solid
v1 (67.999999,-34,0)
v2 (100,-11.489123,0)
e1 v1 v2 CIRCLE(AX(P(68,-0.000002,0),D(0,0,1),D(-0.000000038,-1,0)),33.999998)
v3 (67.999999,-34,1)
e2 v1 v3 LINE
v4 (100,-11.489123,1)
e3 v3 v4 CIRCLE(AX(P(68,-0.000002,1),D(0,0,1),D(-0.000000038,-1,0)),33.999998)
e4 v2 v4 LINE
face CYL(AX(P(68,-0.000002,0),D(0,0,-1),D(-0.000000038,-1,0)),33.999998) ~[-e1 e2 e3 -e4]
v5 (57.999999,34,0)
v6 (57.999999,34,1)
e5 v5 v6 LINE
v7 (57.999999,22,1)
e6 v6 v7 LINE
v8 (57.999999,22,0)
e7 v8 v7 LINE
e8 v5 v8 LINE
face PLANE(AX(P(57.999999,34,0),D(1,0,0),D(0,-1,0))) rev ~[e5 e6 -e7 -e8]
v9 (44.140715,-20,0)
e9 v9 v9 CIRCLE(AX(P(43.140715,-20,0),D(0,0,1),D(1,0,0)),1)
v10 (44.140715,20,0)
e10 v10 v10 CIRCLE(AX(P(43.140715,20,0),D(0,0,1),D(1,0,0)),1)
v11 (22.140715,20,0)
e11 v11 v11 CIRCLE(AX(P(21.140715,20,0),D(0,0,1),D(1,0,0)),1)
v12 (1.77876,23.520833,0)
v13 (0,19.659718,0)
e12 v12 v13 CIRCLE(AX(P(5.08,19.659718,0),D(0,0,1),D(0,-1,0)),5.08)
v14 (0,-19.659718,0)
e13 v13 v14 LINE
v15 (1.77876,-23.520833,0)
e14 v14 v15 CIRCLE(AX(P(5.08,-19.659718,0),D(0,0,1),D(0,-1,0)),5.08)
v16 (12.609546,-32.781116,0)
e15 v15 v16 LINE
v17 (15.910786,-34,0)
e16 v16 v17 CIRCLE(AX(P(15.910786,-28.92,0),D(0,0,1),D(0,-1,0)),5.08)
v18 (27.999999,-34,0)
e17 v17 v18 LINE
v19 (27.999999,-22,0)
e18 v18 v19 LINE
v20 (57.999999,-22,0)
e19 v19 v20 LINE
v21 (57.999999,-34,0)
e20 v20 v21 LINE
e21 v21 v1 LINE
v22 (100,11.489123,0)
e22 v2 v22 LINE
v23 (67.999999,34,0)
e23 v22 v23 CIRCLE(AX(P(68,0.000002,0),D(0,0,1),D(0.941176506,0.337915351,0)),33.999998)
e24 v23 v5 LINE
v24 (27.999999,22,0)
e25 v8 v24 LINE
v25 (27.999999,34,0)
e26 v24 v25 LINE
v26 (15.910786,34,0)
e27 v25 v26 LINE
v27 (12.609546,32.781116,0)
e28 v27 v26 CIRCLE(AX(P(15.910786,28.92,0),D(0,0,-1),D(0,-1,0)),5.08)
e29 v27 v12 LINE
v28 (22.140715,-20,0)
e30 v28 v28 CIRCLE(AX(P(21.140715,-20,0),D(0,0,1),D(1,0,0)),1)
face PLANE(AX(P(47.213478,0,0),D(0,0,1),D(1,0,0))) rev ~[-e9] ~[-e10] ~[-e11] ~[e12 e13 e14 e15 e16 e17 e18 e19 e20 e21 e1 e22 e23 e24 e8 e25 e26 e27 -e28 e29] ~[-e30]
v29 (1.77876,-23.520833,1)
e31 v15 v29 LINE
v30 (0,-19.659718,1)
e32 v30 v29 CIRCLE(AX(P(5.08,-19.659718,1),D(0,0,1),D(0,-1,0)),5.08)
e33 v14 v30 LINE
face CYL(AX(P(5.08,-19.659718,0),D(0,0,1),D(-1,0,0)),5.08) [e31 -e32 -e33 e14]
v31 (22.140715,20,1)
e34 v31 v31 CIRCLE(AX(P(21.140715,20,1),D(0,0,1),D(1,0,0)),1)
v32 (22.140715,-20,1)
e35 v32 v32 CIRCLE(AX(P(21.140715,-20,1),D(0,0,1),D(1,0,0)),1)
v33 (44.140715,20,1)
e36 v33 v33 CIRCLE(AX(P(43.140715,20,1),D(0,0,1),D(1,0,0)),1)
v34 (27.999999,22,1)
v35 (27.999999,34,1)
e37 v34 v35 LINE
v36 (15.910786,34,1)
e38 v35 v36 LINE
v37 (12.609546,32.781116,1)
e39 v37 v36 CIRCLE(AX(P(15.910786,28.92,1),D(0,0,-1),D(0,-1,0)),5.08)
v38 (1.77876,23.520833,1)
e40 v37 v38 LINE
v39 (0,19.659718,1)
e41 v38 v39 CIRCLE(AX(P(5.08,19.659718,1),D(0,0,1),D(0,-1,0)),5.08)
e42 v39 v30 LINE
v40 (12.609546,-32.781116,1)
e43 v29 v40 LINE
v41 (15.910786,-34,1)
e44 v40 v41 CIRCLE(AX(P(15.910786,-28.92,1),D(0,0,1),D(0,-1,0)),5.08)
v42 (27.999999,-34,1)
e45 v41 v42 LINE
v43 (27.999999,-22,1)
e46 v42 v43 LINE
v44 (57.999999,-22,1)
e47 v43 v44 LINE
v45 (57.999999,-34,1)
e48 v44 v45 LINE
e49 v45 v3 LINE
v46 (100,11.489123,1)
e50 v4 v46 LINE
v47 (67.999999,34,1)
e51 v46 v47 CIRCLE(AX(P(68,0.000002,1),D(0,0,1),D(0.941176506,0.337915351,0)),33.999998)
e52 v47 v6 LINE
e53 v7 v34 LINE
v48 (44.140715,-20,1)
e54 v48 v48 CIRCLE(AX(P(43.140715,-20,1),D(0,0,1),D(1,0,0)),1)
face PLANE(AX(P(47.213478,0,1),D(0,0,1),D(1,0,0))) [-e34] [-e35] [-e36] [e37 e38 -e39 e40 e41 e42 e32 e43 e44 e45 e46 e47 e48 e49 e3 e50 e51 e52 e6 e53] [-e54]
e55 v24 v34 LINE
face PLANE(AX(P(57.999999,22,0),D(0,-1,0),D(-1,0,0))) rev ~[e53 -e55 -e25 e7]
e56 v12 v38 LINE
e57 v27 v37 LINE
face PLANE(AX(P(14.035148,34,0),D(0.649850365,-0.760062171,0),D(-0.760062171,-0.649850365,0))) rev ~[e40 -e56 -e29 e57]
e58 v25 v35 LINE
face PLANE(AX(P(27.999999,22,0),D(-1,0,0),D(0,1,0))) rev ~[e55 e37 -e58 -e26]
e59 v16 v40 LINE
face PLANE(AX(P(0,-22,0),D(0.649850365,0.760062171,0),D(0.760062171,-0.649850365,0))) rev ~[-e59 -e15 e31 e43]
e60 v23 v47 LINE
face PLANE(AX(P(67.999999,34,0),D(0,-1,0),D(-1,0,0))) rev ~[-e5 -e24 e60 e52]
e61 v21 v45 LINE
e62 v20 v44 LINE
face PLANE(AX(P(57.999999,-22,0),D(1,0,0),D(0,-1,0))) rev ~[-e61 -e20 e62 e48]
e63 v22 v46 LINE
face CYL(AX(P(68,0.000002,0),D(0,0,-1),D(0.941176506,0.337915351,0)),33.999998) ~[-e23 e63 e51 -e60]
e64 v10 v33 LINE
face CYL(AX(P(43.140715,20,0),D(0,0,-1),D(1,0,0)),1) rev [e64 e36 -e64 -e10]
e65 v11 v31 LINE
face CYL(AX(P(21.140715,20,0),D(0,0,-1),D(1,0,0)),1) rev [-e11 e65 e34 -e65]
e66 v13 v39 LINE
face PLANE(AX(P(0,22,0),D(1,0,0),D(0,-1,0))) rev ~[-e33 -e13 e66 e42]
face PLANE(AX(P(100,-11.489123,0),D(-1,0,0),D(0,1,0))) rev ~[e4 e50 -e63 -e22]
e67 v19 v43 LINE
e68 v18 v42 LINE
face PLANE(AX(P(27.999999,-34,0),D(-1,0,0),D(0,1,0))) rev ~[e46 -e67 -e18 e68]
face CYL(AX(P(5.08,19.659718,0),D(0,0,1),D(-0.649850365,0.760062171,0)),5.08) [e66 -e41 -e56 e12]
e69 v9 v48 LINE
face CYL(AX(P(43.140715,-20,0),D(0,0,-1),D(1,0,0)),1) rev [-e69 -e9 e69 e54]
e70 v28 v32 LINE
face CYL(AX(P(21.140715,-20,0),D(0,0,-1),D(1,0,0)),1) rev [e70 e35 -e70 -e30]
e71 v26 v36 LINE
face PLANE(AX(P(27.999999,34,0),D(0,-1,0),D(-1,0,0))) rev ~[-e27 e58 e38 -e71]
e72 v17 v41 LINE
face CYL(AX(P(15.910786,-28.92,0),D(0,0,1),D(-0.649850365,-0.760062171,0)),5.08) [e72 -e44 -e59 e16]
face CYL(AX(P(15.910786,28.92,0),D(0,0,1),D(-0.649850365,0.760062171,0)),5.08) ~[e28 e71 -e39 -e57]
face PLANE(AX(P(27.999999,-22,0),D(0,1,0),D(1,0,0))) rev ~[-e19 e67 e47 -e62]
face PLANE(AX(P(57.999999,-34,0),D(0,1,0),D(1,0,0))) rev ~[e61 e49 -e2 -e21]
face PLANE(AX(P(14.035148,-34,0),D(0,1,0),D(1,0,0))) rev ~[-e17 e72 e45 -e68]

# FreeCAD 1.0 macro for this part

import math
import FreeCAD as App
import Part
import Sketcher
from FreeCAD import Vector
Q = App.Units.Quantity


def edges_at(feature, points):
    """Names of the edges that pass closest to the given points."""
    edges = feature.Shape.Edges
    near = lambda p: min(range(len(edges)), key=lambda i: edges[i].distToShape(Part.Vertex(*p))[0])
    return sorted({f"Edge{near(p) + 1}" for p in points})

doc = App.newDocument("Part")
body = doc.addObject("PartDesign::Body", "Body")

sketch1 = doc.addObject("Sketcher::SketchObject", "Sketch")
body.addObject(sketch1)
sketch1.AttachmentSupport = (doc.XY_Plane, [""])
sketch1.MapMode = "FlatFace"
sketch1.addGeometry([
    Part.LineSegment(Vector(0, 22, 0), Vector(0, -22, 0)),
    Part.LineSegment(Vector(0, -22, 0), Vector(14, -34, 0)),
    Part.LineSegment(Vector(14, -34, 0), Vector(28, -34, 0)),
    Part.LineSegment(Vector(28, -34, 0), Vector(28, -22, 0)),
    Part.LineSegment(Vector(28, -22, 0), Vector(58, -22, 0)),
    Part.LineSegment(Vector(58, -22, 0), Vector(58, -34, 0)),
    Part.LineSegment(Vector(58, -34, 0), Vector(68, -34, 0)),
    Part.ArcOfCircle(Part.Circle(Vector(68, 0, 0), Vector(0, 0, 1), 34), math.radians(-90), math.radians(-20)),
    Part.LineSegment(Vector(100, -11.5, 0), Vector(100, 11.5, 0)),
    Part.ArcOfCircle(Part.Circle(Vector(68, 0, 0), Vector(0, 0, 1), 34), math.radians(20), math.radians(90)),
    Part.LineSegment(Vector(68, 34, 0), Vector(58, 34, 0)),
    Part.LineSegment(Vector(58, 34, 0), Vector(58, 22, 0)),
    Part.LineSegment(Vector(58, 22, 0), Vector(28, 22, 0)),
    Part.LineSegment(Vector(28, 22, 0), Vector(28, 34, 0)),
    Part.LineSegment(Vector(28, 34, 0), Vector(14, 34, 0)),
    Part.LineSegment(Vector(14, 34, 0), Vector(0, 22, 0)),
    Part.Circle(Vector(21.1, -20, 0), Vector(0, 0, 1), 1),
    Part.Circle(Vector(43.1, -20, 0), Vector(0, 0, 1), 1),
    Part.Circle(Vector(21.1, 20, 0), Vector(0, 0, 1), 1),
    Part.Circle(Vector(43.1, 20, 0), Vector(0, 0, 1), 1),
], False)
sketch1.addConstraint([
    Sketcher.Constraint("Coincident", 0, 2, 1, 1),
    Sketcher.Constraint("Coincident", 1, 2, 2, 1),
    Sketcher.Constraint("Coincident", 2, 2, 3, 1),
    Sketcher.Constraint("Coincident", 3, 2, 4, 1),
    Sketcher.Constraint("Coincident", 4, 2, 5, 1),
    Sketcher.Constraint("Coincident", 5, 2, 6, 1),
    Sketcher.Constraint("Tangent", 6, 2, 7, 1),
    Sketcher.Constraint("Coincident", 7, 2, 8, 1),
    Sketcher.Constraint("Coincident", 8, 2, 9, 1),
    Sketcher.Constraint("Tangent", 9, 2, 10, 1),
    Sketcher.Constraint("Coincident", 10, 2, 11, 1),
    Sketcher.Constraint("Coincident", 11, 2, 12, 1),
    Sketcher.Constraint("Coincident", 12, 2, 13, 1),
    Sketcher.Constraint("Coincident", 13, 2, 14, 1),
    Sketcher.Constraint("Coincident", 14, 2, 15, 1),
    Sketcher.Constraint("Coincident", 15, 2, 0, 1),
    Sketcher.Constraint("Vertical", 0),
    Sketcher.Constraint("Horizontal", 2),
    Sketcher.Constraint("Vertical", 3),
    Sketcher.Constraint("Horizontal", 4),
    Sketcher.Constraint("Vertical", 5),
    Sketcher.Constraint("Horizontal", 6),
    Sketcher.Constraint("Vertical", 8),
    Sketcher.Constraint("Horizontal", 10),
    Sketcher.Constraint("Vertical", 11),
    Sketcher.Constraint("Horizontal", 12),
    Sketcher.Constraint("Vertical", 13),
    Sketcher.Constraint("Horizontal", 14),
    Sketcher.Constraint("Coincident", 9, 3, 7, 3),
    Sketcher.Constraint("Equal", 7, 9),
    Sketcher.Constraint("Equal", 16, 17),
    Sketcher.Constraint("Equal", 17, 18),
    Sketcher.Constraint("Equal", 18, 19),
    Sketcher.Constraint("Symmetric", 0, 2, 15, 2, -1, 1),
    Sketcher.Constraint("Symmetric", 16, 3, 18, 3, -1),
    Sketcher.Constraint("Symmetric", 17, 3, 19, 3, -1),
    Sketcher.Constraint("Symmetric", 5, 2, 10, 2, -1),
    Sketcher.Constraint("Symmetric", 3, 2, 12, 2, -1),
    Sketcher.Constraint("Symmetric", 1, 2, 14, 2, -1),
    Sketcher.Constraint("Horizontal", 16, 3, 17, 3),
    Sketcher.Constraint("Horizontal", 0, 2, 3, 2),
    Sketcher.Constraint("Horizontal", 2, 2, 5, 2),
    Sketcher.Constraint("Diameter", 16, Q("2 mm")),
    Sketcher.Constraint("Radius", 7, Q("33.999998 mm")),
    Sketcher.Constraint("DistanceX", 4, 1, 4, 2, Q("30 mm")),
    Sketcher.Constraint("DistanceX", 6, 1, 6, 2, Q("10 mm")),
    Sketcher.Constraint("DistanceY", 0, 2, 0, 1, Q("44 mm")),
    Sketcher.Constraint("DistanceX", -1, 1, 7, 3, Q("68 mm")),
    Sketcher.Constraint("DistanceY", 16, 3, -1, 1, Q("20 mm")),
    Sketcher.Constraint("DistanceX", -1, 1, 7, 2, Q("100 mm")),
    Sketcher.Constraint("DistanceX", 16, 3, 17, 3, Q("22 mm")),
    Sketcher.Constraint("DistanceX", 2, 1, 2, 2, Q("13.964851 mm")),
    Sketcher.Constraint("DistanceX", -1, 1, 16, 3, Q("21.140715 mm")),
])
pad1 = doc.addObject("PartDesign::Pad", "Pad")
body.addObject(pad1)
pad1.Profile = sketch1
pad1.Length = 1
doc.recompute()

fillet = doc.addObject("PartDesign::Fillet", "Fillet")
body.addObject(fillet)
fillet.Base = (pad1, edges_at(pad1, [(14.035, 34, 0.5)]))
fillet.Radius = 5.08
doc.recompute()

fillet2 = doc.addObject("PartDesign::Fillet", "Fillet001")
body.addObject(fillet2)
fillet2.Base = (fillet, edges_at(fillet, [(0, 22, 0.5)]))
fillet2.Radius = 5.08
doc.recompute()

fillet3 = doc.addObject("PartDesign::Fillet", "Fillet002")
body.addObject(fillet3)
fillet3.Base = (fillet2, edges_at(fillet2, [(0, -22, 0.5)]))
fillet3.Radius = 5.08
doc.recompute()

fillet4 = doc.addObject("PartDesign::Fillet", "Fillet003")
body.addObject(fillet4)
fillet4.Base = (fillet3, edges_at(fillet3, [(14.035, -34, 0.5)]))
fillet4.Radius = 5.08

doc.recompute()
